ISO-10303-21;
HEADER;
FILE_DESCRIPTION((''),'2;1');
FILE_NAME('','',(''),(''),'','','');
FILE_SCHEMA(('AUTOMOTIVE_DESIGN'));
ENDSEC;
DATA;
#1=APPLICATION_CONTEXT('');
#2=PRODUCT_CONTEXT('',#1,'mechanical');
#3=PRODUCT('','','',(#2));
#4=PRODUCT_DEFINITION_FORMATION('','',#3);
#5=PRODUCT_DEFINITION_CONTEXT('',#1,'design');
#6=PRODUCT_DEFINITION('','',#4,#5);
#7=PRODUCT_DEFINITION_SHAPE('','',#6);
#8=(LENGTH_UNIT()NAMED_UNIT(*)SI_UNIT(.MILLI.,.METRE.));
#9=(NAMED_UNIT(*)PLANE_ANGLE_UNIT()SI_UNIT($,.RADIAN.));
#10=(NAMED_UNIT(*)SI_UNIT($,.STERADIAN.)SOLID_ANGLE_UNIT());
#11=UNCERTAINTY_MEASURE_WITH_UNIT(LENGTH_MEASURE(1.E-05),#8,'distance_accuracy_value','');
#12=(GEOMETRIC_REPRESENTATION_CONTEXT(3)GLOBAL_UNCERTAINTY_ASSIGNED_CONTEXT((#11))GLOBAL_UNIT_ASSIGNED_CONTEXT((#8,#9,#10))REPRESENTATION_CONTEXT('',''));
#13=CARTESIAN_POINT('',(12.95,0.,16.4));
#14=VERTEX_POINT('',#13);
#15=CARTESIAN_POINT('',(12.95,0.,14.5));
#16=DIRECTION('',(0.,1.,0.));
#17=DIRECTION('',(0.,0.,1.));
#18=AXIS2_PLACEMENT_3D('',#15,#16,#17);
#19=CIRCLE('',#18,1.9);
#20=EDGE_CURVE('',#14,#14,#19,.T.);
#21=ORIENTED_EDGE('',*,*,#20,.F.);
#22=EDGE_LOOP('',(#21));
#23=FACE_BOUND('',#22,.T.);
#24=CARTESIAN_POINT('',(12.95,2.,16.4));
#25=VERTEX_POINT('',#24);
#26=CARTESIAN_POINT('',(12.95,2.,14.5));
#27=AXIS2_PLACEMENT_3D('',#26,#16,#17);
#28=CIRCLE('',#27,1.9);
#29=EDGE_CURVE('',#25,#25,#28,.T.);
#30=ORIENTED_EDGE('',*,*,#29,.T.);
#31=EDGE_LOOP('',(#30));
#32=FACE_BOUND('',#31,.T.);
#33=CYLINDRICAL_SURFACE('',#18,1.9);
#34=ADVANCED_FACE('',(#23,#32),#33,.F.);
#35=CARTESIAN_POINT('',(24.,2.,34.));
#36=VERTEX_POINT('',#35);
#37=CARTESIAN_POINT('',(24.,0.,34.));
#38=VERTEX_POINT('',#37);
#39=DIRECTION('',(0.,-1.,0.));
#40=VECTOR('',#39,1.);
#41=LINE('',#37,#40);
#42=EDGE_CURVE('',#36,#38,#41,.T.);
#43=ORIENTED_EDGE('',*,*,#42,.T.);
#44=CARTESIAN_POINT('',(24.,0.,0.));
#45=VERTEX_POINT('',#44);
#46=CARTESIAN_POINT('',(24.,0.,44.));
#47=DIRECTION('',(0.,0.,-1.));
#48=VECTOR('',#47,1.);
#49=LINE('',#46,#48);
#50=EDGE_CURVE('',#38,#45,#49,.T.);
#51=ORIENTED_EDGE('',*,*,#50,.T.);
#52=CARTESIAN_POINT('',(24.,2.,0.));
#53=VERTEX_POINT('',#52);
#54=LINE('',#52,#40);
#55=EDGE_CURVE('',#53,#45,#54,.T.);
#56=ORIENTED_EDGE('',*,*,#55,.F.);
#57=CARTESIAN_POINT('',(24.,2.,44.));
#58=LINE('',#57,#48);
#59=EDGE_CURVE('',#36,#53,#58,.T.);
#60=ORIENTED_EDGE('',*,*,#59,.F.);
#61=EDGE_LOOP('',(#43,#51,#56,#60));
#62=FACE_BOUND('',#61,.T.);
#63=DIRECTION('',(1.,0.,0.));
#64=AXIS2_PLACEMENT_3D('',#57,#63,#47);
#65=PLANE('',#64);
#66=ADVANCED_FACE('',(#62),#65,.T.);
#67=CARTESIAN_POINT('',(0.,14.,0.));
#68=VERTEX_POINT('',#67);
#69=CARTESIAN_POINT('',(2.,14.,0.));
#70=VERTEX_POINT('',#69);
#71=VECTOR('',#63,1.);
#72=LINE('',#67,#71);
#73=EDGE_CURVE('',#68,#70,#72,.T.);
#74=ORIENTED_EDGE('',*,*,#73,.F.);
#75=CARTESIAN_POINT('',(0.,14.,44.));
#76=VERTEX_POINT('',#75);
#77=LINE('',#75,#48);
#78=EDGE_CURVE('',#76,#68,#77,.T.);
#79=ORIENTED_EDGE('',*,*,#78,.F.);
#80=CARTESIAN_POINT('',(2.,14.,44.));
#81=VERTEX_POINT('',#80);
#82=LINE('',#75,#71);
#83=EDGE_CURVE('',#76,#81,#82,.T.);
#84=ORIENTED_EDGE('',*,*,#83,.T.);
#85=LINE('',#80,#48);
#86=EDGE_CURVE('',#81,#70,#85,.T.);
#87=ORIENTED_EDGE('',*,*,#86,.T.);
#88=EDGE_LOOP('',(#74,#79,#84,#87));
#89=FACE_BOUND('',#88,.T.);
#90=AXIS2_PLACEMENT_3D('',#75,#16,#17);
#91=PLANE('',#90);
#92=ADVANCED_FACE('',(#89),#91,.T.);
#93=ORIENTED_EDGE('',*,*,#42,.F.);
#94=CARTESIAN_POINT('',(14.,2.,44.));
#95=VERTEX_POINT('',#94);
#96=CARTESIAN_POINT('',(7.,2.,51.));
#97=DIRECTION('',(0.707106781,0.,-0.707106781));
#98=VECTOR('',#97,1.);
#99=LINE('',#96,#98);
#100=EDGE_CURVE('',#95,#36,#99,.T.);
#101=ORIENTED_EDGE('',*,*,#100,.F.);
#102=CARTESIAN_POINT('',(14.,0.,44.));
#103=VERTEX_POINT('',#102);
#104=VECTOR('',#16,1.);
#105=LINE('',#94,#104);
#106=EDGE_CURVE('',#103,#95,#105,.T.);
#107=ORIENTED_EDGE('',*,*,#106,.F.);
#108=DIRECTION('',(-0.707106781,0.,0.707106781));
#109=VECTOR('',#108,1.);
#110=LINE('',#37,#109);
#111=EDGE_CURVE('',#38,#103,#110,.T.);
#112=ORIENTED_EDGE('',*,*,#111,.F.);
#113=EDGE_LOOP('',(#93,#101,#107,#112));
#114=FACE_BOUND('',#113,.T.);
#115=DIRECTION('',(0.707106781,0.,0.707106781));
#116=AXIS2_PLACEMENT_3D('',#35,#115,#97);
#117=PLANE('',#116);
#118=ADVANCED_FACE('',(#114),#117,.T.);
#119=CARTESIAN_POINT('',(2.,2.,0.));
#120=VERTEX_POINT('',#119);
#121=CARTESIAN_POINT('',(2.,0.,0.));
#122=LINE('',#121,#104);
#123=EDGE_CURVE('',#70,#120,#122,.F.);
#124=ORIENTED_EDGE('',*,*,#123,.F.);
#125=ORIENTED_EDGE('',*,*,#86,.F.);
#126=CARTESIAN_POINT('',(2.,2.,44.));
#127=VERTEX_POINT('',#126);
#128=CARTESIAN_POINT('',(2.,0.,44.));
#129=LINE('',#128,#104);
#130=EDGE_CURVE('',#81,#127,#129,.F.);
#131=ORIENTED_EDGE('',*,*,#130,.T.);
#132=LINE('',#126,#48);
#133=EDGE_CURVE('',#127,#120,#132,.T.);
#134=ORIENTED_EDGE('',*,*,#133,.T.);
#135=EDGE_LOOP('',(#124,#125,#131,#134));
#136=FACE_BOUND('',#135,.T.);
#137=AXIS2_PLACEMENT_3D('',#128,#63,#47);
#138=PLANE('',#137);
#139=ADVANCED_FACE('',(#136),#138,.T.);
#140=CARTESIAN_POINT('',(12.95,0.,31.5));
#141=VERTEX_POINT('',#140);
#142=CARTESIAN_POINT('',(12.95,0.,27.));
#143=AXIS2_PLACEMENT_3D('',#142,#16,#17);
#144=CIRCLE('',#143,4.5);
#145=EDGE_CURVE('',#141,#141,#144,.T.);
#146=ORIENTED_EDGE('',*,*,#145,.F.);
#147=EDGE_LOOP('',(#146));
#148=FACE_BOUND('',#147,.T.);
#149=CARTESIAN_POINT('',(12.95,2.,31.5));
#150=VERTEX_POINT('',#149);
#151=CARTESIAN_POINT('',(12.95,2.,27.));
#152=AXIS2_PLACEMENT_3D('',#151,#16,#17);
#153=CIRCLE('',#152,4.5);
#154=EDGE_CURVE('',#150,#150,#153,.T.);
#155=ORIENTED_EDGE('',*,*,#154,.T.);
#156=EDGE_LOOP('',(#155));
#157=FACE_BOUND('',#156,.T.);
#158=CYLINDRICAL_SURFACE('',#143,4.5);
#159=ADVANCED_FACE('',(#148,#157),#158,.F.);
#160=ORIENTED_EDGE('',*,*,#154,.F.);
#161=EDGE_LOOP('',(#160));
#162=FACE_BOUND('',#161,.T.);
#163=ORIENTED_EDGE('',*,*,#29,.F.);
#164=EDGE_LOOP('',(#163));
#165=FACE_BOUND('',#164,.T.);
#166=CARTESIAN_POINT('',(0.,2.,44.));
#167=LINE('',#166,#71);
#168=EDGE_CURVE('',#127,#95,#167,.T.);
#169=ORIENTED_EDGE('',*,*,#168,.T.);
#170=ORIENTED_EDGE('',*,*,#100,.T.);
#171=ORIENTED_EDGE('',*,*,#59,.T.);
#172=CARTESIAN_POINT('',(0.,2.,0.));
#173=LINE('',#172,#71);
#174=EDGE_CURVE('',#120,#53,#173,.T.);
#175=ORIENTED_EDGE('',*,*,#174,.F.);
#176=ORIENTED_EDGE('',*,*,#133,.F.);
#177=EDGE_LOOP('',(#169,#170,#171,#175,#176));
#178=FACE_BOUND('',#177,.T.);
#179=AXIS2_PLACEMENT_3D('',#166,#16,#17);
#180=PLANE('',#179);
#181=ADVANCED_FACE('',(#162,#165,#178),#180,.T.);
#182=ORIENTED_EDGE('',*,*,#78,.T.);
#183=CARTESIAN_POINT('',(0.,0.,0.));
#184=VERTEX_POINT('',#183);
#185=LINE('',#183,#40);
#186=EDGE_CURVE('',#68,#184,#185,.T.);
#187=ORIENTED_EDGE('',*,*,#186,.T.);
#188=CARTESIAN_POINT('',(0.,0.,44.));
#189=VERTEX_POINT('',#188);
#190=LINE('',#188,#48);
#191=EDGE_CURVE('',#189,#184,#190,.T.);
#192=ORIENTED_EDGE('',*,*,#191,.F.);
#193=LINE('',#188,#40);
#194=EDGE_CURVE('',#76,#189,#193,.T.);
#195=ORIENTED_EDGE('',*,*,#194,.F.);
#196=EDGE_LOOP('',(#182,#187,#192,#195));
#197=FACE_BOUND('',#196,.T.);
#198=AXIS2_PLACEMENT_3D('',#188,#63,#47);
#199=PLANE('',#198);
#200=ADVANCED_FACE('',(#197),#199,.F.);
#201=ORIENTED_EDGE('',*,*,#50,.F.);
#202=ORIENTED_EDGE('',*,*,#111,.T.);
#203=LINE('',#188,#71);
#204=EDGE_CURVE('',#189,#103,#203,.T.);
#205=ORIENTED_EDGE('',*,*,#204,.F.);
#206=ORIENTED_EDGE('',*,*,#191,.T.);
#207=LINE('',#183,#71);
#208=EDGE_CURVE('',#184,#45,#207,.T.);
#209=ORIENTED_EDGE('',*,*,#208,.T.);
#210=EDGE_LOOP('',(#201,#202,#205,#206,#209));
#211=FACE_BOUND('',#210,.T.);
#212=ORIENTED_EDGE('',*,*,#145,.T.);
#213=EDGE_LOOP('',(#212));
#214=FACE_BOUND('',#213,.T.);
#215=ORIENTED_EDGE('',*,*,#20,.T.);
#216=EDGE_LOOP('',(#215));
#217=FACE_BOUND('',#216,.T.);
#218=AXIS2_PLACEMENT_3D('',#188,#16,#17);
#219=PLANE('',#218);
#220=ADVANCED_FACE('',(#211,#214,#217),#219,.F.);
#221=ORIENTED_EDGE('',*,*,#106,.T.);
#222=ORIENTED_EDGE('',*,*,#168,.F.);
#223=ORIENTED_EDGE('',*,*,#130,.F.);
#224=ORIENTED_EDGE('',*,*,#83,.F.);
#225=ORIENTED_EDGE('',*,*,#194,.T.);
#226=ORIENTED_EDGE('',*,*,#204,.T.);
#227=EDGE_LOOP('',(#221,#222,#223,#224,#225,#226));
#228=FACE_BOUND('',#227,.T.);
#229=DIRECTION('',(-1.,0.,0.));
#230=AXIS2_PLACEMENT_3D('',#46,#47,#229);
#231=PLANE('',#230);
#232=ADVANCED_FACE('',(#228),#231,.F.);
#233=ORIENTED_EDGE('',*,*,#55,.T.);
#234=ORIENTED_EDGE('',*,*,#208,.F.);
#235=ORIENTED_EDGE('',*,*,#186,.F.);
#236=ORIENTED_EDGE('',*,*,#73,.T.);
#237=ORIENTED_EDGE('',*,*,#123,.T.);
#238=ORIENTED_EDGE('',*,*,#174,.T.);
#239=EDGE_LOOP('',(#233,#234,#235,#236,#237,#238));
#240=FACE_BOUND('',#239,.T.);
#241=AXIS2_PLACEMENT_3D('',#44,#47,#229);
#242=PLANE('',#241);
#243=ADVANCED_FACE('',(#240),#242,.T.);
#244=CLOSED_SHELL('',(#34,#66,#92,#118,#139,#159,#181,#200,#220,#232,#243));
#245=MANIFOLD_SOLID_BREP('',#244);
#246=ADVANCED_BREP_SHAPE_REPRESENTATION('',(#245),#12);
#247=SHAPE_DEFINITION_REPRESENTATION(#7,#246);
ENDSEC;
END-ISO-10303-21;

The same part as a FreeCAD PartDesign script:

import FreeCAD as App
import Part
import Sketcher
from FreeCAD import Vector
Q = App.Units.Quantity


def edges_at(feature, points):
    """Names of the edges that pass closest to the given points."""
    edges = feature.Shape.Edges
    near = lambda p: min(range(len(edges)), key=lambda i: edges[i].distToShape(Part.Vertex(*p))[0])
    return sorted({f"Edge{near(p) + 1}" for p in points})


def add_polygon(sketch, points):
    """Adds a closed chain of lines whose ends are joined by coincident constraints."""
    first, n = sketch.GeometryCount, len(points)
    for a, b in zip(points, points[1:] + points[:1]):
        sketch.addGeometry(Part.LineSegment(App.Vector(*a, 0), App.Vector(*b, 0)), False)
    for i in range(n):
        sketch.addConstraint(Sketcher.Constraint("Coincident", first + i, 2, first + (i + 1) % n, 1))

doc = App.newDocument("Part")
body = doc.addObject("PartDesign::Body", "Body")

# Sketch on XY plane
sketch1 = body.newObject("Sketcher::SketchObject", "Sketch")
sketch1.AttachmentSupport = (doc.getObject("XY_Plane"), [""])
sketch1.MapMode = "FlatFace"
add_polygon(sketch1, [(0, 0), (24, 0), (24, 2), (2, 2), (2, 14), (0, 14)])  # lines 0-5
sketch1.addConstraint(Sketcher.Constraint("Horizontal", 0))
sketch1.addConstraint(Sketcher.Constraint("Vertical", 1))
sketch1.addConstraint(Sketcher.Constraint("Horizontal", 2))
sketch1.addConstraint(Sketcher.Constraint("Vertical", 3))
sketch1.addConstraint(Sketcher.Constraint("Horizontal", 4))
sketch1.addConstraint(Sketcher.Constraint("Vertical", 5))
sketch1.addConstraint(Sketcher.Constraint("Coincident", 5, 2, -1, 1))
sketch1.addConstraint(Sketcher.Constraint("Equal", 4, 1))
sketch1.addConstraint(Sketcher.Constraint("DistanceX", 0, 1, 0, 2, Q("24 mm")))
sketch1.addConstraint(Sketcher.Constraint("DistanceX", 2, 2, 2, 1, Q("22 mm")))
sketch1.addConstraint(Sketcher.Constraint("DistanceY", 3, 1, 3, 2, Q("12 mm")))
pad1 = body.newObject("PartDesign::Pad", "Pad")
pad1.Profile = sketch1
pad1.Length = 44

# Sketch on XZ plane
sketch2 = body.newObject("Sketcher::SketchObject", "Sketch001")
sketch2.AttachmentSupport = (doc.getObject("XZ_Plane"), [""])
sketch2.MapMode = "FlatFace"
sketch2.AttachmentOffset = App.Placement(Vector(0, 0, -2), App.Rotation())
sketch2.addGeometry(Part.Circle(Vector(12.95, 14.5, 0), Vector(0, 0, 1), 1.9), False)
sketch2.addGeometry(Part.Circle(Vector(12.95, 27, 0), Vector(0, 0, 1), 4.5), False)
sketch2.addConstraint(Sketcher.Constraint("Vertical", 0, 3, 1, 3))
sketch2.addConstraint(Sketcher.Constraint("Diameter", 1, Q("9 mm")))
sketch2.addConstraint(Sketcher.Constraint("Diameter", 0, Q("3.8 mm")))
sketch2.addConstraint(Sketcher.Constraint("DistanceY", -1, 1, 1, 3, Q("27 mm")))
sketch2.addConstraint(Sketcher.Constraint("DistanceY", -1, 1, 0, 3, Q("14.5 mm")))
sketch2.addConstraint(Sketcher.Constraint("DistanceX", -1, 1, 0, 3, Q("12.95 mm")))
pocket1 = body.newObject("PartDesign::Pocket", "Pocket")
pocket1.Profile = sketch2
pocket1.Type = "ThroughAll"
pocket1.Reversed = True
doc.recompute()

chamfer = body.newObject("PartDesign::Chamfer", "Chamfer")
chamfer.Base = (pocket1, edges_at(pocket1, [(24, 1, 44)]))
chamfer.Size = 10

doc.recompute()
